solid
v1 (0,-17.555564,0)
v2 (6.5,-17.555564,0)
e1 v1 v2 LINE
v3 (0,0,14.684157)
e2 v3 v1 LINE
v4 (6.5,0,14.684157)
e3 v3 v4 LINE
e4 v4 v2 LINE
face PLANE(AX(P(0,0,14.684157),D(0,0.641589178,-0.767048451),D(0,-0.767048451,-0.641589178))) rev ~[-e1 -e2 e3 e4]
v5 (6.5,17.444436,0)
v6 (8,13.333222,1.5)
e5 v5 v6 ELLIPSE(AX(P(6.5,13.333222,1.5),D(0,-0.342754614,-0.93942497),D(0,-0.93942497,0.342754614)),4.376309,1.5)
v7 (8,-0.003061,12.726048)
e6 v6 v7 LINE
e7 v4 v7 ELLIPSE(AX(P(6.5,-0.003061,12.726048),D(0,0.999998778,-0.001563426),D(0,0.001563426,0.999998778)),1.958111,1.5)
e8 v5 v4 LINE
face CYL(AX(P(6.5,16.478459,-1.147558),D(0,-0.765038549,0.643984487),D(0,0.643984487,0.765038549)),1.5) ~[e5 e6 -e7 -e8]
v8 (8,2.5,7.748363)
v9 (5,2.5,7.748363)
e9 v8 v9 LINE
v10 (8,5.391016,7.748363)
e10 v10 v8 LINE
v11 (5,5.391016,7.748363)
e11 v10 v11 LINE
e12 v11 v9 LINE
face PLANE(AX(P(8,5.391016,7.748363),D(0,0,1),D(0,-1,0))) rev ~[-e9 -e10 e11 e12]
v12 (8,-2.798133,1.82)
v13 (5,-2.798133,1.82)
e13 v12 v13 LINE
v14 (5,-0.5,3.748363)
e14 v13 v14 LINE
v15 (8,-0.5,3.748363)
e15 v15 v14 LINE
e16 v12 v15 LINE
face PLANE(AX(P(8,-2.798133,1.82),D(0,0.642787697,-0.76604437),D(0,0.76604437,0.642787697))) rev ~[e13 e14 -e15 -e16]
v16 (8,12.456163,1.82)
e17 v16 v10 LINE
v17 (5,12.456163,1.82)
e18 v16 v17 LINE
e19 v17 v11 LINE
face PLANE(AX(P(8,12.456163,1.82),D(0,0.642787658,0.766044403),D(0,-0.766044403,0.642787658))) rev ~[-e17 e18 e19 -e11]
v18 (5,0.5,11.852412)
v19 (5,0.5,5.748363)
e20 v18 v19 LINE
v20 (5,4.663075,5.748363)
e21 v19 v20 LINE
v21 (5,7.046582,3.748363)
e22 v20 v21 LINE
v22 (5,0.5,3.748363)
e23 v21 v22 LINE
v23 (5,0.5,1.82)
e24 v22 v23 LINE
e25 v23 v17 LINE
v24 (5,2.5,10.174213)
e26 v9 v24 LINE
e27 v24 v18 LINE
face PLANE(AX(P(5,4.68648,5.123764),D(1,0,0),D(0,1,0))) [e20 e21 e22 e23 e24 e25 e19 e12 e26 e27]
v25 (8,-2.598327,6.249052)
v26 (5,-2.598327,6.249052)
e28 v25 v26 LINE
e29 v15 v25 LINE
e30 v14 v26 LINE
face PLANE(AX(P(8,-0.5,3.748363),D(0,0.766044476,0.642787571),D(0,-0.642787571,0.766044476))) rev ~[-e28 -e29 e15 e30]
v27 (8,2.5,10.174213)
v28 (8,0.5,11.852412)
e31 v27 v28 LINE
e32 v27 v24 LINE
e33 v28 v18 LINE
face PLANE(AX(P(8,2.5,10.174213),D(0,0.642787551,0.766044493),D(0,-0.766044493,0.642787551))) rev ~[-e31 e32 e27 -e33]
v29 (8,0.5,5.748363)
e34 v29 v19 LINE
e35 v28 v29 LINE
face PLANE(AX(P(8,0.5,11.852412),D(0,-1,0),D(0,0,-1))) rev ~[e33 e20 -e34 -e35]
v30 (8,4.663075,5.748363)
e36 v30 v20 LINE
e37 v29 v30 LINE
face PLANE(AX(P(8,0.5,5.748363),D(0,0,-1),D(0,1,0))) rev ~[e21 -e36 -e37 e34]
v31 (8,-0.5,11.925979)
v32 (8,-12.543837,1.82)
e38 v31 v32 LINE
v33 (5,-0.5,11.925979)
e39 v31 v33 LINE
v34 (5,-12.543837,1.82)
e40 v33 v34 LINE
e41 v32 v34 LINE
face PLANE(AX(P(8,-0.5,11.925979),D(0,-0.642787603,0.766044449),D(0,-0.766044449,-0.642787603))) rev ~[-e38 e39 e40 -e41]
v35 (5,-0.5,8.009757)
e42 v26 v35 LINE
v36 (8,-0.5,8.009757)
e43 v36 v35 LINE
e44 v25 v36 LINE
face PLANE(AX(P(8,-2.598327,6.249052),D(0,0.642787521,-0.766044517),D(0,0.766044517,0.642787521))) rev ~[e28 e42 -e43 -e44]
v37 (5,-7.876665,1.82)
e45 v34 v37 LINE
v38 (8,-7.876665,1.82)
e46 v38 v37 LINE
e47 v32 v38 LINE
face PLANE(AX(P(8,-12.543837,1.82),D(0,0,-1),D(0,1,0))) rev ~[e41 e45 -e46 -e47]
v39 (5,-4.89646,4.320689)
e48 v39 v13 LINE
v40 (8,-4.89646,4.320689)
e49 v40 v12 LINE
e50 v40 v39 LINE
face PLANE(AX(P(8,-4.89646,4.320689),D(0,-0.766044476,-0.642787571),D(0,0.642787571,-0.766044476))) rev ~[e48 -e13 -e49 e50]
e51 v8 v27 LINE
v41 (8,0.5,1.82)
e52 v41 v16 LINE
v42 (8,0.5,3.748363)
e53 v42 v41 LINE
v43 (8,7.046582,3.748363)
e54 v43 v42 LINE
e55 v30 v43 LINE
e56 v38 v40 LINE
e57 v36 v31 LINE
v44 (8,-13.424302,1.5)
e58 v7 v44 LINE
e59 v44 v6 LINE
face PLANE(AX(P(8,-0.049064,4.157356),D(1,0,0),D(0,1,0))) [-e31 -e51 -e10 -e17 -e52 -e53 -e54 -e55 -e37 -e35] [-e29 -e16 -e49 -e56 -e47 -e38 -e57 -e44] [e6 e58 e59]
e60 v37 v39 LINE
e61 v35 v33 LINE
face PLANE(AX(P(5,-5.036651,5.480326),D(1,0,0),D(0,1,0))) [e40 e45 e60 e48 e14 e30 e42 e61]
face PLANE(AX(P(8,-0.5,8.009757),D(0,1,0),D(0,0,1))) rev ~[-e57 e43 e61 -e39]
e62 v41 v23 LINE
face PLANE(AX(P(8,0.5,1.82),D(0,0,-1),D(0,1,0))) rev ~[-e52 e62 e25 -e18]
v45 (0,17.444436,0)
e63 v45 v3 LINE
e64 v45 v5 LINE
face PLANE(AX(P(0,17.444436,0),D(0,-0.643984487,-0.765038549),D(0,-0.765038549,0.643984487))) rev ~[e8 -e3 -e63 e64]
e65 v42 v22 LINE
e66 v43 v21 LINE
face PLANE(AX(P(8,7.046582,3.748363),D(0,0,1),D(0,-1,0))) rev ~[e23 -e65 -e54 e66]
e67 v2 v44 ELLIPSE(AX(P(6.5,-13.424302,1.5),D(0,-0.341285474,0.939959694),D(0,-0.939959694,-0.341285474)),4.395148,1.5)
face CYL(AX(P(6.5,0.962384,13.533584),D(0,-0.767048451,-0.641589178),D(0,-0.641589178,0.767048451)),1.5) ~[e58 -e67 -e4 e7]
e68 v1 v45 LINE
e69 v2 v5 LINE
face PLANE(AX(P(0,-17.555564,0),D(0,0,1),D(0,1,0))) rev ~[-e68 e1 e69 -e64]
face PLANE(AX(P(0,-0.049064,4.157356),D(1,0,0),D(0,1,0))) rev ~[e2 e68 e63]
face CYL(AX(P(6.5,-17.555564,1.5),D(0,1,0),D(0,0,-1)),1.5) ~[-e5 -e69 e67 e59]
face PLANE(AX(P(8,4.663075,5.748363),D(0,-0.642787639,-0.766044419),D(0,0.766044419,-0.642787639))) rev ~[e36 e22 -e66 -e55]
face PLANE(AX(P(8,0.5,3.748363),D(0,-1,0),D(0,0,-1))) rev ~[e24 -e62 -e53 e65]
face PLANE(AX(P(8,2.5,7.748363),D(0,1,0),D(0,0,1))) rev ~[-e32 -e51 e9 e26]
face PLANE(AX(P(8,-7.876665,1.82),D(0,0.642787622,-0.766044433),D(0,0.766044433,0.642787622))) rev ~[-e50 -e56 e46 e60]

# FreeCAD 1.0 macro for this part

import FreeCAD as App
import Part
import Sketcher
Q = App.Units.Quantity


def edges_at(feature, points):
    """Names of the edges that pass closest to the given points."""
    edges = feature.Shape.Edges
    near = lambda p: min(range(len(edges)), key=lambda i: edges[i].distToShape(Part.Vertex(*p))[0])
    return sorted({f"Edge{near(p) + 1}" for p in points})

doc = App.newDocument("Part")
params = doc.addObject("Spreadsheet::Sheet", "Params")
for row, (alias, value) in enumerate([
    ("sketch1_width", "35 mm"),
    ("pad1_length", "8 mm"),
    ("sketch2_length", "3 mm"),
    ("pocket1_length", "3 mm"),
    ("fillet_radius", "1.5 mm"),
], start=1):
    params.set(f"A{row}", alias)
    params.set(f"B{row}", "=" + value)
    params.setAlias(f"B{row}", alias)

body = doc.addObject("PartDesign::Body", "Body")

# Sketch on YZ plane
sketch1 = body.newObject("Sketcher::SketchObject", "Sketch")
sketch1.AttachmentSupport = (doc.getObject("YZ_Plane"), [""])
sketch1.MapMode = "FlatFace"
sketch1.addGeometry([
    Part.LineSegment(App.Vector(0, 15, 0), App.Vector(-18, 0, 0)),
    Part.LineSegment(App.Vector(-18, 0, 0), App.Vector(17, 0, 0)),
    Part.LineSegment(App.Vector(17, 0, 0), App.Vector(0, 15, 0)),
], False)
sketch1.addConstraint([
    Sketcher.Constraint("Coincident", 0, 2, 1, 1),
    Sketcher.Constraint("Coincident", 1, 2, 2, 1),
    Sketcher.Constraint("Coincident", 2, 2, 0, 1),
    Sketcher.Constraint("Horizontal", 1),
    Sketcher.Constraint("PointOnObject", 0, 2, -1),
    Sketcher.Constraint("PointOnObject", 2, 2, -2),
    Sketcher.Constraint("DistanceX", 1, 1, 1, 2, 35.0),
    Sketcher.Constraint("Distance", 0, 22.887164),
    Sketcher.Constraint("Distance", 2, 22.802035),
])
sketch1.setExpression("Constraints[6]", "Params.sketch1_width")
pad1 = body.newObject("PartDesign::Pad", "Pad")
pad1.Profile = sketch1
pad1.setExpression("Length", "Params.pad1_length")

# Sketch on YZ plane
sketch2 = body.newObject("Sketcher::SketchObject", "Sketch001")
sketch2.AttachmentSupport = (doc.getObject("YZ_Plane"), [""])
sketch2.MapMode = "FlatFace"
sketch2.AttachmentOffset = App.Placement(App.Vector(0, 0, 8), App.Rotation())
sketch2.addGeometry([
    Part.LineSegment(App.Vector(-0.5, 11.9, 0), App.Vector(-12.5, 1.8, 0)),  # 0
    Part.LineSegment(App.Vector(-12.5, 1.8, 0), App.Vector(-7.9, 1.8, 0)),  # 1
    Part.LineSegment(App.Vector(-7.9, 1.8, 0), App.Vector(-4.9, 4.3, 0)),  # 2
    Part.LineSegment(App.Vector(-4.9, 4.3, 0), App.Vector(-2.8, 1.8, 0)),  # 3
    Part.LineSegment(App.Vector(-2.8, 1.8, 0), App.Vector(-0.5, 3.7, 0)),  # 4
    Part.LineSegment(App.Vector(-0.5, 3.7, 0), App.Vector(-2.6, 6.2, 0)),  # 5
    Part.LineSegment(App.Vector(-2.6, 6.2, 0), App.Vector(-0.5, 8, 0)),  # 6
    Part.LineSegment(App.Vector(-0.5, 8, 0), App.Vector(-0.5, 11.9, 0)),  # 7
    Part.LineSegment(App.Vector(2.5, 10.2, 0), App.Vector(0.5, 11.9, 0)),  # 8
    Part.LineSegment(App.Vector(0.5, 11.9, 0), App.Vector(0.5, 5.7, 0)),  # 9
    Part.LineSegment(App.Vector(0.5, 5.7, 0), App.Vector(4.7, 5.7, 0)),  # 10
    Part.LineSegment(App.Vector(4.7, 5.7, 0), App.Vector(7, 3.7, 0)),  # 11
    Part.LineSegment(App.Vector(7, 3.7, 0), App.Vector(0.5, 3.7, 0)),  # 12
    Part.LineSegment(App.Vector(0.5, 3.7, 0), App.Vector(0.5, 1.8, 0)),  # 13
    Part.LineSegment(App.Vector(0.5, 1.8, 0), App.Vector(12.5, 1.8, 0)),  # 14
    Part.LineSegment(App.Vector(12.5, 1.8, 0), App.Vector(5.4, 7.7, 0)),  # 15
    Part.LineSegment(App.Vector(5.4, 7.7, 0), App.Vector(2.5, 7.7, 0)),  # 16
    Part.LineSegment(App.Vector(2.5, 7.7, 0), App.Vector(2.5, 10.2, 0)),  # 17
], False)
sketch2.addConstraint([
    Sketcher.Constraint("Coincident", 0, 2, 1, 1),
    Sketcher.Constraint("Coincident", 1, 2, 2, 1),
    Sketcher.Constraint("Coincident", 2, 2, 3, 1),
    Sketcher.Constraint("Coincident", 3, 2, 4, 1),
    Sketcher.Constraint("Coincident", 4, 2, 5, 1),
    Sketcher.Constraint("Coincident", 5, 2, 6, 1),
    Sketcher.Constraint("Coincident", 6, 2, 7, 1),
    Sketcher.Constraint("Coincident", 7, 2, 0, 1),
    Sketcher.Constraint("Coincident", 8, 2, 9, 1),
    Sketcher.Constraint("Coincident", 9, 2, 10, 1),
    Sketcher.Constraint("Coincident", 10, 2, 11, 1),
    Sketcher.Constraint("Coincident", 11, 2, 12, 1),
    Sketcher.Constraint("Coincident", 12, 2, 13, 1),
    Sketcher.Constraint("Coincident", 13, 2, 14, 1),
    Sketcher.Constraint("Coincident", 14, 2, 15, 1),
    Sketcher.Constraint("Coincident", 15, 2, 16, 1),
    Sketcher.Constraint("Coincident", 16, 2, 17, 1),
    Sketcher.Constraint("Coincident", 17, 2, 8, 1),
    Sketcher.Constraint("Horizontal", 1),
    Sketcher.Constraint("Vertical", 7),
    Sketcher.Constraint("Vertical", 9),
    Sketcher.Constraint("Horizontal", 10),
    Sketcher.Constraint("Horizontal", 12),
    Sketcher.Constraint("Vertical", 13),
    Sketcher.Constraint("Horizontal", 14),
    Sketcher.Constraint("Horizontal", 16),
    Sketcher.Constraint("Vertical", 17),
    Sketcher.Constraint("Symmetric", 4, 2, 12, 2, -2),
    Sketcher.Constraint("Parallel", 0, 2),
    Sketcher.Constraint("Perpendicular", 2, 3),
    Sketcher.Constraint("Perpendicular", 3, 4),
    Sketcher.Constraint("Perpendicular", 4, 5),
    Sketcher.Constraint("Perpendicular", 5, 6),
    Sketcher.Constraint("Parallel", 8, 11),
    Sketcher.Constraint("Parallel", 11, 15),
    Sketcher.Constraint("Horizontal", 1, 2, 3, 2),
    Sketcher.Constraint("Horizontal", 3, 2, 13, 2),
    Sketcher.Constraint("Vertical", 4, 2, 6, 2),
    Sketcher.Constraint("Vertical", 9, 2, 12, 2),
    Sketcher.Constraint("Equal", 3, 5),
    Sketcher.Constraint("Angle", 0, Q("-140.000001 deg")),
    Sketcher.Constraint("Angle", 8, Q("140.000004 deg")),
    Sketcher.Constraint("Distance", 4, 3.0),
    Sketcher.Constraint("DistanceX", 7, 2, 8, 2, 1.0),
    Sketcher.Constraint("DistanceY", 4, 2, 9, 2, 2.0),
    Sketcher.Constraint("DistanceY", 10, 2, 15, 2, 2.0),
    Sketcher.Constraint("DistanceX", 9, 2, 16, 2, 2.0),
    Sketcher.Constraint("DistanceY", -1, 1, 0, 2, 1.82),
    Sketcher.Constraint("DistanceY", 7, 1, 7, 2, 3.916222),
    Sketcher.Constraint("DistanceY", 9, 2, 9, 1, 6.104049),
    Sketcher.Constraint("Distance", 2, 3.890381),
    Sketcher.Constraint("DistanceX", 10, 1, 10, 2, 4.163075),
    Sketcher.Constraint("DistanceX", 14, 1, 14, 2, 11.956163),
])
sketch2.setExpression("Constraints[42]", "Params.sketch2_length")
pocket1 = body.newObject("PartDesign::Pocket", "Pocket")
pocket1.Profile = sketch2
pocket1.setExpression("Length", "Params.pocket1_length")
doc.recompute()

fillet = body.newObject("PartDesign::Fillet", "Fillet")
fillet.Base = (pocket1, edges_at(pocket1, [(8, 8.722, 7.342), (8, -8.778, 7.342), (8, -0.056, 0)]))
fillet.setExpression("Radius", "Params.fillet_radius")

doc.recompute()
